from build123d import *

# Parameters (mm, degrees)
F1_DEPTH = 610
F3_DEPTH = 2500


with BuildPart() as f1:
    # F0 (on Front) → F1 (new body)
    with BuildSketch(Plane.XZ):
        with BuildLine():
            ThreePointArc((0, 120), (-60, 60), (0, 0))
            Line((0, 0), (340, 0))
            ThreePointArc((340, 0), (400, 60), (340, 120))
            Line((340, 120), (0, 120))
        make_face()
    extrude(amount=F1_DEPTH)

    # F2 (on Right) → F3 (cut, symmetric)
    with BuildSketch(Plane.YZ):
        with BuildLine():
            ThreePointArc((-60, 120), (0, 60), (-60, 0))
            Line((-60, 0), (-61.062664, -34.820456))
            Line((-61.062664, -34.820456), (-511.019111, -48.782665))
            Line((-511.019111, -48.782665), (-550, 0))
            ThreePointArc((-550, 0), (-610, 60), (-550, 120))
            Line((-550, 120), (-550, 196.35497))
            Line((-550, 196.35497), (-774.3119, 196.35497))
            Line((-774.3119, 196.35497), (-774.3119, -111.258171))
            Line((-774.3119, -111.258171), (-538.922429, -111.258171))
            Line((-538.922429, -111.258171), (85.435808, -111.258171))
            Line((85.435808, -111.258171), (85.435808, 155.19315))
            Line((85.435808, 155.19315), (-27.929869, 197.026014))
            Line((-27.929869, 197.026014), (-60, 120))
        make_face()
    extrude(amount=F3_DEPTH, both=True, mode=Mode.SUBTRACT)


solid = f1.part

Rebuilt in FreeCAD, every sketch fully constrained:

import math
import FreeCAD as App
import Part
import Sketcher
Q = App.Units.Quantity

doc = App.newDocument("Part")
body = doc.addObject("PartDesign::Body", "Body")

# Sketch on XZ plane
sketch1 = body.newObject("Sketcher::SketchObject", "Sketch")
sketch1.AttachmentSupport = (doc.getObject("XZ_Plane"), [""])
sketch1.MapMode = "FlatFace"
sketch1.addGeometry([
    Part.ArcOfCircle(Part.Circle(App.Vector(0, 60, 0), App.Vector(0, 0, 1), 60), math.radians(90), math.radians(270)),
    Part.LineSegment(App.Vector(0, 0, 0), App.Vector(340, 0, 0)),
    Part.ArcOfCircle(Part.Circle(App.Vector(340, 60, 0), App.Vector(0, 0, 1), 60), math.radians(-90), math.radians(90)),
    Part.LineSegment(App.Vector(340, 120, 0), App.Vector(0, 120, 0)),
], False)
sketch1.addConstraint([
    Sketcher.Constraint("Tangent", 0, 2, 1, 1),
    Sketcher.Constraint("Tangent", 1, 2, 2, 1),
    Sketcher.Constraint("Tangent", 2, 2, 3, 1),
    Sketcher.Constraint("Tangent", 3, 2, 0, 1),
    Sketcher.Constraint("Horizontal", 1),
    Sketcher.Constraint("Horizontal", 3),
    Sketcher.Constraint("Coincident", 0, 2, -1, 1),
    Sketcher.Constraint("Radius", 0, Q("60 mm")),
    Sketcher.Constraint("DistanceX", 1, 1, 1, 2, Q("340 mm")),
])
pad1 = body.newObject("PartDesign::Pad", "Pad")
pad1.Profile = sketch1
pad1.Length = 610

# Sketch on YZ plane
sketch2 = body.newObject("Sketcher::SketchObject", "Sketch001")
sketch2.AttachmentSupport = (doc.getObject("YZ_Plane"), [""])
sketch2.MapMode = "FlatFace"
sketch2.addGeometry([
    Part.ArcOfCircle(Part.Circle(App.Vector(-60, 60, 0), App.Vector(0, 0, 1), 60), math.radians(-90), math.radians(90)),  # 0
    Part.LineSegment(App.Vector(-60, 0, 0), App.Vector(-61, -35, 0)),  # 1
    Part.LineSegment(App.Vector(-61, -35, 0), App.Vector(-511, -49, 0)),  # 2
    Part.LineSegment(App.Vector(-511, -49, 0), App.Vector(-550, 0, 0)),  # 3
    Part.ArcOfCircle(Part.Circle(App.Vector(-550, 60, 0), App.Vector(0, 0, 1), 60), math.radians(90), math.radians(270)),  # 4
    Part.LineSegment(App.Vector(-550, 120, 0), App.Vector(-550, 196, 0)),  # 5
    Part.LineSegment(App.Vector(-550, 196, 0), App.Vector(-774, 196, 0)),  # 6
    Part.LineSegment(App.Vector(-774, 196, 0), App.Vector(-774, -111, 0)),  # 7
    Part.LineSegment(App.Vector(-774, -111, 0), App.Vector(85, -111, 0)),  # 8
    Part.LineSegment(App.Vector(85, -111, 0), App.Vector(85, 155, 0)),  # 9
    Part.LineSegment(App.Vector(85, 155, 0), App.Vector(-28, 197, 0)),  # 10
    Part.LineSegment(App.Vector(-28, 197, 0), App.Vector(-60, 120, 0)),  # 11
], False)
sketch2.addConstraint([
    Sketcher.Constraint("Coincident", 0, 1, 1, 1),
    Sketcher.Constraint("Coincident", 1, 2, 2, 1),
    Sketcher.Constraint("Coincident", 2, 2, 3, 1),
    Sketcher.Constraint("Coincident", 3, 2, 4, 2),
    Sketcher.Constraint("Coincident", 4, 1, 5, 1),
    Sketcher.Constraint("Coincident", 5, 2, 6, 1),
    Sketcher.Constraint("Coincident", 6, 2, 7, 1),
    Sketcher.Constraint("Coincident", 7, 2, 8, 1),
    Sketcher.Constraint("Coincident", 8, 2, 9, 1),
    Sketcher.Constraint("Coincident", 9, 2, 10, 1),
    Sketcher.Constraint("Coincident", 10, 2, 11, 1),
    Sketcher.Constraint("Coincident", 11, 2, 0, 2),
    Sketcher.Constraint("Vertical", 5),
    Sketcher.Constraint("Horizontal", 6),
    Sketcher.Constraint("Vertical", 7),
    Sketcher.Constraint("Horizontal", 8),
    Sketcher.Constraint("Vertical", 9),
    Sketcher.Constraint("Equal", 0, 4),
    Sketcher.Constraint("PointOnObject", 0, 1, -1),
    Sketcher.Constraint("PointOnObject", 3, 2, -1),
    Sketcher.Constraint("Vertical", 4, 3, 3, 2),
    Sketcher.Constraint("Vertical", 3, 2, 4, 1),
    Sketcher.Constraint("Vertical", 0, 1, 11, 2),
    Sketcher.Constraint("Radius", 0, Q("60 mm")),
    Sketcher.Constraint("DistanceX", 0, 3, -1, 1, Q("60 mm")),
    Sketcher.Constraint("DistanceX", 4, 3, -1, 1, Q("550 mm")),
    Sketcher.Constraint("DistanceX", 0, 1, -1, 1, Q("60 mm")),
    Sketcher.Constraint("DistanceX", 6, 2, 6, 1, Q("224.3119 mm")),
    Sketcher.Constraint("DistanceX", 8, 1, 8, 2, Q("859.747708 mm")),
    Sketcher.Constraint("DistanceY", 5, 1, 5, 2, Q("76.35497 mm")),
    Sketcher.Constraint("DistanceY", 7, 2, 7, 1, Q("307.613141 mm")),
    Sketcher.Constraint("DistanceY", 9, 1, 9, 2, Q("266.451321 mm")),
    Sketcher.Constraint("Distance", 2, Q("450.173019 mm")),
    Sketcher.Constraint("Distance", 3, Q("62.44404 mm")),
    Sketcher.Constraint("DistanceX", 2, 2, -1, 1, Q("511.019111 mm")),
    Sketcher.Constraint("DistanceX", 10, 2, -1, 1, Q("27.929869 mm")),
    Sketcher.Constraint("DistanceY", 2, 2, 1, 2, Q("13.962209 mm")),
    Sketcher.Constraint("DistanceY", 1, 2, 10, 2, Q("231.84647 mm")),
])
pocket1 = body.newObject("PartDesign::Pocket", "Pocket")
pocket1.Profile = sketch2
pocket1.Length = 5000
pocket1.Midplane = True

doc.recompute()
